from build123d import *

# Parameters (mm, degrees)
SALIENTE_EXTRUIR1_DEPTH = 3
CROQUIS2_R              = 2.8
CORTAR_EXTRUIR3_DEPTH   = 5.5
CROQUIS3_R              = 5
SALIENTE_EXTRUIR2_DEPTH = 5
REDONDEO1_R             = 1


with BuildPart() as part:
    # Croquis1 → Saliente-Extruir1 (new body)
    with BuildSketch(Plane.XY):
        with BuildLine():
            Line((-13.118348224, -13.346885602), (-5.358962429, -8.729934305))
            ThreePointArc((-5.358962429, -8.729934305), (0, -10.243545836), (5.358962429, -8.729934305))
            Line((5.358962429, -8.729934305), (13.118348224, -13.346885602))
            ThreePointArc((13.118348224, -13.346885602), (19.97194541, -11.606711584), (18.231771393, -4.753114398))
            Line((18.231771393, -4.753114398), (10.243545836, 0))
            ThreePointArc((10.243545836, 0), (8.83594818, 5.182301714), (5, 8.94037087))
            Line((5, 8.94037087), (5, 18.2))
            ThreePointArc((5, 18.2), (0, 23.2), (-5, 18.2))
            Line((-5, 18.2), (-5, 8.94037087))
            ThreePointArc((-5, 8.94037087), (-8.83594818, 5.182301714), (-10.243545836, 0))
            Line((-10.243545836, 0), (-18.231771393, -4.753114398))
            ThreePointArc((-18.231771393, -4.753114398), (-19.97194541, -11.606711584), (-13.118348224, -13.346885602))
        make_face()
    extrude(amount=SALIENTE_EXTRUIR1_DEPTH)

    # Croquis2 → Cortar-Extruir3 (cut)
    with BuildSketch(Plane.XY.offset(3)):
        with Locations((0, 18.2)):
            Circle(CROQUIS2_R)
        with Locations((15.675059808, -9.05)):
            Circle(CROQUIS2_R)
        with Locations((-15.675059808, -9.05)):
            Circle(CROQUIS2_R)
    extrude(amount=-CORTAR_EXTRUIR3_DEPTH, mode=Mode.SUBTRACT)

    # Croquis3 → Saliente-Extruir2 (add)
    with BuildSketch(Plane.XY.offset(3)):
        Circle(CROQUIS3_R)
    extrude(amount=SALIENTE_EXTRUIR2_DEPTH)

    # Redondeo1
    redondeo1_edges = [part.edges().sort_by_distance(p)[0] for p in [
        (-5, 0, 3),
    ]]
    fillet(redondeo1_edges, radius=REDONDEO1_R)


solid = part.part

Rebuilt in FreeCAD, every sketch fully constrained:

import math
import FreeCAD as App
import Part
import Sketcher
Q = App.Units.Quantity


def edges_at(feature, points):
    """Names of the edges that pass closest to the given points."""
    edges = feature.Shape.Edges
    near = lambda p: min(range(len(edges)), key=lambda i: edges[i].distToShape(Part.Vertex(*p))[0])
    return sorted({f"Edge{near(p) + 1}" for p in points})

doc = App.newDocument("Part")
body = doc.addObject("PartDesign::Body", "Body")

# Sketch on XY plane
sketch1 = body.newObject("Sketcher::SketchObject", "Sketch")
sketch1.AttachmentSupport = (doc.getObject("XY_Plane"), [""])
sketch1.MapMode = "FlatFace"
sketch1.addGeometry(Part.LineSegment(App.Vector(-13, -13, 0), App.Vector(-5, -9, 0)), False)
sketch1.addGeometry(Part.ArcOfCircle(Part.Circle(App.Vector(0, 0, 0), App.Vector(0, 0, 1), 10), math.radians(-122), math.radians(-58)), False)
sketch1.addGeometry(Part.LineSegment(App.Vector(5, -9, 0), App.Vector(13, -13, 0)), False)
sketch1.addGeometry(Part.ArcOfCircle(Part.Circle(App.Vector(16, -9, 0), App.Vector(0, 0, 1), 5), math.radians(-121), math.radians(59)), False)
sketch1.addGeometry(Part.LineSegment(App.Vector(18, -5, 0), App.Vector(10, 0, 0)), False)
sketch1.addGeometry(Part.ArcOfCircle(Part.Circle(App.Vector(0, 0, 0), App.Vector(0, 0, 1), 10), math.radians(0), math.radians(61)), False)
sketch1.addGeometry(Part.LineSegment(App.Vector(5, 9, 0), App.Vector(5, 18, 0)), False)
sketch1.addGeometry(Part.ArcOfCircle(Part.Circle(App.Vector(0, 18, 0), App.Vector(0, 0, 1), 5), math.radians(0), math.radians(180)), False)
sketch1.addGeometry(Part.LineSegment(App.Vector(-5, 18, 0), App.Vector(-5, 9, 0)), False)
sketch1.addGeometry(Part.ArcOfCircle(Part.Circle(App.Vector(0, 0, 0), App.Vector(0, 0, 1), 10), math.radians(119), math.radians(180)), False)
sketch1.addGeometry(Part.LineSegment(App.Vector(-10, 0, 0), App.Vector(-18, -5, 0)), False)
sketch1.addGeometry(Part.ArcOfCircle(Part.Circle(App.Vector(-16, -9, 0), App.Vector(0, 0, 1), 5), math.radians(121), math.radians(301)), False)
sketch1.addConstraint(Sketcher.Constraint("Coincident", 0, 2, 1, 1))
sketch1.addConstraint(Sketcher.Constraint("Coincident", 1, 2, 2, 1))
sketch1.addConstraint(Sketcher.Constraint("Tangent", 2, 2, 3, 1))
sketch1.addConstraint(Sketcher.Constraint("Tangent", 3, 2, 4, 1))
sketch1.addConstraint(Sketcher.Constraint("Coincident", 4, 2, 5, 1))
sketch1.addConstraint(Sketcher.Constraint("Coincident", 5, 2, 6, 1))
sketch1.addConstraint(Sketcher.Constraint("Tangent", 6, 2, 7, 1))
sketch1.addConstraint(Sketcher.Constraint("Tangent", 7, 2, 8, 1))
sketch1.addConstraint(Sketcher.Constraint("Coincident", 8, 2, 9, 1))
sketch1.addConstraint(Sketcher.Constraint("Coincident", 9, 2, 10, 1))
sketch1.addConstraint(Sketcher.Constraint("Tangent", 10, 2, 11, 1))
sketch1.addConstraint(Sketcher.Constraint("Tangent", 11, 2, 0, 1))
sketch1.addConstraint(Sketcher.Constraint("Vertical", 6))
sketch1.addConstraint(Sketcher.Constraint("Vertical", 8))
sketch1.addConstraint(Sketcher.Constraint("Coincident", 1, 3, -1, 1))
sketch1.addConstraint(Sketcher.Constraint("Coincident", 5, 3, -1, 1))
sketch1.addConstraint(Sketcher.Constraint("Coincident", 9, 3, -1, 1))
sketch1.addConstraint(Sketcher.Constraint("Equal", 1, 5))
sketch1.addConstraint(Sketcher.Constraint("Equal", 3, 7))
sketch1.addConstraint(Sketcher.Constraint("Equal", 5, 9))
sketch1.addConstraint(Sketcher.Constraint("Equal", 7, 11))
sketch1.addConstraint(Sketcher.Constraint("Symmetric", 3, 3, 11, 3, -2))
sketch1.addConstraint(Sketcher.Constraint("PointOnObject", 7, 3, -2))
sketch1.addConstraint(Sketcher.Constraint("PointOnObject", 4, 2, -1))
sketch1.addConstraint(Sketcher.Constraint("PointOnObject", 9, 2, -1))
sketch1.addConstraint(Sketcher.Constraint("Parallel", 2, 4))
sketch1.addConstraint(Sketcher.Constraint("Parallel", 0, 10))
sketch1.addConstraint(Sketcher.Constraint("Radius", 3, Q("5 mm")))
sketch1.addConstraint(Sketcher.Constraint("DistanceY", -1, 1, 7, 3, Q("18.2 mm")))
sketch1.addConstraint(Sketcher.Constraint("DistanceY", 3, 3, -1, 1, Q("9.05 mm")))
sketch1.addConstraint(Sketcher.Constraint("Radius", 1, Q("10.243546 mm")))
sketch1.addConstraint(Sketcher.Constraint("Distance", 0, Q("9.029081 mm")))
pad1 = body.newObject("PartDesign::Pad", "Pad")
pad1.Profile = sketch1
pad1.Length = 3

# Sketch on XY plane
sketch2 = body.newObject("Sketcher::SketchObject", "Sketch001")
sketch2.AttachmentSupport = (doc.getObject("XY_Plane"), [""])
sketch2.MapMode = "FlatFace"
sketch2.AttachmentOffset = App.Placement(App.Vector(0, 0, 3), App.Rotation())
sketch2.addGeometry(Part.Circle(App.Vector(0, 18.2, 0), App.Vector(0, 0, 1), 2.8), False)
sketch2.addGeometry(Part.Circle(App.Vector(15.7, -9.1, 0), App.Vector(0, 0, 1), 2.8), False)
sketch2.addGeometry(Part.Circle(App.Vector(-15.7, -9.1, 0), App.Vector(0, 0, 1), 2.8), False)
sketch2.addConstraint(Sketcher.Constraint("Equal", 0, 1))
sketch2.addConstraint(Sketcher.Constraint("Equal", 1, 2))
sketch2.addConstraint(Sketcher.Constraint("Symmetric", 1, 3, 2, 3, -2))
sketch2.addConstraint(Sketcher.Constraint("PointOnObject", 0, 3, -2))
sketch2.addConstraint(Sketcher.Constraint("Diameter", 0, Q("5.6 mm")))
sketch2.addConstraint(Sketcher.Constraint("DistanceY", -1, 1, 0, 3, Q("18.2 mm")))
sketch2.addConstraint(Sketcher.Constraint("DistanceY", 1, 3, -1, 1, Q("9.05 mm")))
sketch2.addConstraint(Sketcher.Constraint("DistanceX", -1, 1, 1, 3, Q("15.67506 mm")))
pocket1 = body.newObject("PartDesign::Pocket", "Pocket")
pocket1.Profile = sketch2
pocket1.Length = 5.5

# Sketch on XY plane
sketch3 = body.newObject("Sketcher::SketchObject", "Sketch002")
sketch3.AttachmentSupport = (doc.getObject("XY_Plane"), [""])
sketch3.MapMode = "FlatFace"
sketch3.AttachmentOffset = App.Placement(App.Vector(0, 0, 3), App.Rotation())
sketch3.addGeometry(Part.Circle(App.Vector(0, 0, 0), App.Vector(0, 0, 1), 5), False)
sketch3.addConstraint(Sketcher.Constraint("Coincident", 0, 3, -1, 1))
sketch3.addConstraint(Sketcher.Constraint("Diameter", 0, Q("10 mm")))
pad2 = body.newObject("PartDesign::Pad", "Pad001")
pad2.Profile = sketch3
pad2.Length = 5
doc.recompute()

fillet = body.newObject("PartDesign::Fillet", "Fillet")
fillet.Base = (pad2, edges_at(pad2, [(-5, 0, 3)]))
fillet.Radius = 1

doc.recompute()
